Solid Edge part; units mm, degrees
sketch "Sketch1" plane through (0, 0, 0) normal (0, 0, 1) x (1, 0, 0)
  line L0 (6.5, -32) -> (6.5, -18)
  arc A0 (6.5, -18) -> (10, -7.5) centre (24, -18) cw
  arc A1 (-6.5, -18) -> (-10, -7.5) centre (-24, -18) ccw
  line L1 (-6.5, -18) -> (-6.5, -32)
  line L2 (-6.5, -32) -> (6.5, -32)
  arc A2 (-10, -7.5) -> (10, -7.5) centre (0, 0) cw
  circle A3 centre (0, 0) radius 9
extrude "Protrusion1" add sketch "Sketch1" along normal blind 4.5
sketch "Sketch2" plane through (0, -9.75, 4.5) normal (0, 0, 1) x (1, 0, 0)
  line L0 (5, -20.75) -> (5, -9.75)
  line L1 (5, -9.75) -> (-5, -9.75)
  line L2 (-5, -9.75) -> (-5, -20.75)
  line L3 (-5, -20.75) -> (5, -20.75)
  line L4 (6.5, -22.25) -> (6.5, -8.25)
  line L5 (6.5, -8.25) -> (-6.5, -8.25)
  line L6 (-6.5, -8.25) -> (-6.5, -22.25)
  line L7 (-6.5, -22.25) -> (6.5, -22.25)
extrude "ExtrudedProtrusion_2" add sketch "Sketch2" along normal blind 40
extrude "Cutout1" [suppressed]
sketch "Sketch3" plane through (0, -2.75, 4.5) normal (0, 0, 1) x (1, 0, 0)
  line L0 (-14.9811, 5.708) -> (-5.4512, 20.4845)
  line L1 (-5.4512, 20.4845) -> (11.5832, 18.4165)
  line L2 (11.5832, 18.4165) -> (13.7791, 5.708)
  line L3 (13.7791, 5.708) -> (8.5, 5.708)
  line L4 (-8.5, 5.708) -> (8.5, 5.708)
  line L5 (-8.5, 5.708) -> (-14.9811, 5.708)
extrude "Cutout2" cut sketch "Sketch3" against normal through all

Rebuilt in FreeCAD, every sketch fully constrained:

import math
import FreeCAD as App
import Part
import Sketcher

V = App.Vector
Q = App.Units.Quantity


def add_polygon(sketch, points):
    """Adds a closed chain of lines whose ends are joined by coincident constraints."""
    first, n = sketch.GeometryCount, len(points)
    for a, b in zip(points, points[1:] + points[:1]):
        sketch.addGeometry(Part.LineSegment(App.Vector(*a, 0), App.Vector(*b, 0)), False)
    for i in range(n):
        sketch.addConstraint(Sketcher.Constraint("Coincident", first + i, 2, first + (i + 1) % n, 1))

doc = App.newDocument("Part")
body = doc.addObject("PartDesign::Body", "Body")

sketch1 = body.newObject("Sketcher::SketchObject", "Sketch")
sketch1.AttachmentSupport = (doc.getObject("XY_Plane"), [""])
sketch1.MapMode = "FlatFace"
sketch1.addGeometry(Part.LineSegment(V(-6.5, -32, 0), V(6.5, -32, 0)), False)
sketch1.addGeometry(Part.LineSegment(V(6.5, -32, 0), V(6.5, -18, 0)), False)
sketch1.addGeometry(Part.ArcOfCircle(Part.Circle(V(24, -18, 0), V(0, 0, 1), 17.5), math.radians(143.130102), math.radians(180)), False)
sketch1.addGeometry(Part.ArcOfCircle(Part.Circle(V(0, 0, 0), V(0, 0, 1), 12.5), math.radians(-36.869898), math.radians(216.869898)), False)
sketch1.addGeometry(Part.ArcOfCircle(Part.Circle(V(-24, -18, 0), V(0, 0, 1), 17.5), math.radians(0), math.radians(36.869898)), False)
sketch1.addGeometry(Part.LineSegment(V(-6.5, -18, 0), V(-6.5, -32, 0)), False)
sketch1.addGeometry(Part.Circle(V(0, 0, 0), V(0, 0, 1), 9), False)
sketch1.addConstraint(Sketcher.Constraint("Coincident", 0, 2, 1, 1))
sketch1.addConstraint(Sketcher.Constraint("Tangent", 1, 2, 2, 2))
sketch1.addConstraint(Sketcher.Constraint("Tangent", 2, 1, 3, 1))
sketch1.addConstraint(Sketcher.Constraint("Tangent", 3, 2, 4, 2))
sketch1.addConstraint(Sketcher.Constraint("Tangent", 4, 1, 5, 1))
sketch1.addConstraint(Sketcher.Constraint("Coincident", 5, 2, 0, 1))
sketch1.addConstraint(Sketcher.Constraint("Horizontal", 0))
sketch1.addConstraint(Sketcher.Constraint("Vertical", 1))
sketch1.addConstraint(Sketcher.Constraint("Vertical", 5))
sketch1.addConstraint(Sketcher.Constraint("Coincident", 3, 3, -1, 1))
sketch1.addConstraint(Sketcher.Constraint("Coincident", 6, 3, -1, 1))
sketch1.addConstraint(Sketcher.Constraint("Equal", 2, 4))
sketch1.addConstraint(Sketcher.Constraint("Horizontal", 2, 3, 4, 3))
sketch1.addConstraint(Sketcher.Constraint("Diameter", 6, 18.0))
sketch1.addConstraint(Sketcher.Constraint("Radius", 2, 17.5))
sketch1.addConstraint(Sketcher.Constraint("Radius", 3, 12.5))
sketch1.addConstraint(Sketcher.Constraint("DistanceX", 0, 1, 0, 2, 13.0))
sketch1.addConstraint(Sketcher.Constraint("DistanceY", 1, 1, 1, 2, 14.0))
pad1 = body.newObject("PartDesign::Pad", "Pad")
pad1.Profile = sketch1
pad1.Length = 4.5

sketch2 = body.newObject("Sketcher::SketchObject", "Sketch001")
sketch2.AttachmentSupport = (doc.getObject("XY_Plane"), [""])
sketch2.MapMode = "FlatFace"
sketch2.AttachmentOffset = App.Placement(V(0, 0, 4.5), App.Rotation())
add_polygon(sketch2, [(-6.5, -32), (6.5, -32), (6.5, -18), (-6.5, -18)])
add_polygon(sketch2, [(5, -19.5), (5, -30.5), (-5, -30.5), (-5, -19.5)])
sketch2.addConstraint(Sketcher.Constraint("Horizontal", 0))
sketch2.addConstraint(Sketcher.Constraint("Vertical", 1))
sketch2.addConstraint(Sketcher.Constraint("Horizontal", 2))
sketch2.addConstraint(Sketcher.Constraint("Vertical", 3))
sketch2.addConstraint(Sketcher.Constraint("Vertical", 4))
sketch2.addConstraint(Sketcher.Constraint("Horizontal", 5))
sketch2.addConstraint(Sketcher.Constraint("Vertical", 6))
sketch2.addConstraint(Sketcher.Constraint("Horizontal", 7))
sketch2.addConstraint(Sketcher.Constraint("DistanceX", 0, 1, 0, 2, 13.0))
sketch2.addConstraint(Sketcher.Constraint("DistanceX", 5, 2, 5, 1, 10.0))
sketch2.addConstraint(Sketcher.Constraint("DistanceY", 1, 1, 1, 2, 14.0))
sketch2.addConstraint(Sketcher.Constraint("DistanceY", 4, 2, 4, 1, 11.0))
sketch2.addConstraint(Sketcher.Constraint("DistanceY", 0, 2, -1, 1, 32.0))
sketch2.addConstraint(Sketcher.Constraint("DistanceX", -1, 1, 4, 2, 5.0))
sketch2.addConstraint(Sketcher.Constraint("DistanceX", -1, 1, 0, 2, 6.5))
sketch2.addConstraint(Sketcher.Constraint("DistanceY", 4, 2, -1, 1, 30.5))
pad2 = body.newObject("PartDesign::Pad", "Pad001")
pad2.Profile = sketch2
pad2.Length = 40

sketch3 = body.newObject("Sketcher::SketchObject", "Sketch002")
sketch3.AttachmentSupport = (doc.getObject("XY_Plane"), [""])
sketch3.MapMode = "FlatFace"
sketch3.AttachmentOffset = App.Placement(V(0, 0, 4.5), App.Rotation())
add_polygon(sketch3, [(-5.4512, 17.7345), (-14.9811, 2.958), (13.7791, 2.958), (11.5832, 15.6665)])
sketch3.addConstraint(Sketcher.Constraint("Horizontal", 1))
sketch3.addConstraint(Sketcher.Constraint("Angle", 0, Q("-122.8194 deg")))
sketch3.addConstraint(Sketcher.Constraint("DistanceX", 0, 2, 3, 2, 9.53))
sketch3.addConstraint(Sketcher.Constraint("DistanceX", 1, 1, 1, 2, 28.7602))
sketch3.addConstraint(Sketcher.Constraint("DistanceX", 0, 2, -1, 1, 14.981))
sketch3.addConstraint(Sketcher.Constraint("DistanceY", -1, 1, 0, 2, 2.958))
sketch3.addConstraint(Sketcher.Constraint("DistanceX", 2, 2, 1, 2, 2.196))
sketch3.addConstraint(Sketcher.Constraint("DistanceY", 2, 2, 3, 2, 2.068))
pocket1 = body.newObject("PartDesign::Pocket", "Pocket")
pocket1.Profile = sketch3
pocket1.Type = "ThroughAll"

doc.recompute()
